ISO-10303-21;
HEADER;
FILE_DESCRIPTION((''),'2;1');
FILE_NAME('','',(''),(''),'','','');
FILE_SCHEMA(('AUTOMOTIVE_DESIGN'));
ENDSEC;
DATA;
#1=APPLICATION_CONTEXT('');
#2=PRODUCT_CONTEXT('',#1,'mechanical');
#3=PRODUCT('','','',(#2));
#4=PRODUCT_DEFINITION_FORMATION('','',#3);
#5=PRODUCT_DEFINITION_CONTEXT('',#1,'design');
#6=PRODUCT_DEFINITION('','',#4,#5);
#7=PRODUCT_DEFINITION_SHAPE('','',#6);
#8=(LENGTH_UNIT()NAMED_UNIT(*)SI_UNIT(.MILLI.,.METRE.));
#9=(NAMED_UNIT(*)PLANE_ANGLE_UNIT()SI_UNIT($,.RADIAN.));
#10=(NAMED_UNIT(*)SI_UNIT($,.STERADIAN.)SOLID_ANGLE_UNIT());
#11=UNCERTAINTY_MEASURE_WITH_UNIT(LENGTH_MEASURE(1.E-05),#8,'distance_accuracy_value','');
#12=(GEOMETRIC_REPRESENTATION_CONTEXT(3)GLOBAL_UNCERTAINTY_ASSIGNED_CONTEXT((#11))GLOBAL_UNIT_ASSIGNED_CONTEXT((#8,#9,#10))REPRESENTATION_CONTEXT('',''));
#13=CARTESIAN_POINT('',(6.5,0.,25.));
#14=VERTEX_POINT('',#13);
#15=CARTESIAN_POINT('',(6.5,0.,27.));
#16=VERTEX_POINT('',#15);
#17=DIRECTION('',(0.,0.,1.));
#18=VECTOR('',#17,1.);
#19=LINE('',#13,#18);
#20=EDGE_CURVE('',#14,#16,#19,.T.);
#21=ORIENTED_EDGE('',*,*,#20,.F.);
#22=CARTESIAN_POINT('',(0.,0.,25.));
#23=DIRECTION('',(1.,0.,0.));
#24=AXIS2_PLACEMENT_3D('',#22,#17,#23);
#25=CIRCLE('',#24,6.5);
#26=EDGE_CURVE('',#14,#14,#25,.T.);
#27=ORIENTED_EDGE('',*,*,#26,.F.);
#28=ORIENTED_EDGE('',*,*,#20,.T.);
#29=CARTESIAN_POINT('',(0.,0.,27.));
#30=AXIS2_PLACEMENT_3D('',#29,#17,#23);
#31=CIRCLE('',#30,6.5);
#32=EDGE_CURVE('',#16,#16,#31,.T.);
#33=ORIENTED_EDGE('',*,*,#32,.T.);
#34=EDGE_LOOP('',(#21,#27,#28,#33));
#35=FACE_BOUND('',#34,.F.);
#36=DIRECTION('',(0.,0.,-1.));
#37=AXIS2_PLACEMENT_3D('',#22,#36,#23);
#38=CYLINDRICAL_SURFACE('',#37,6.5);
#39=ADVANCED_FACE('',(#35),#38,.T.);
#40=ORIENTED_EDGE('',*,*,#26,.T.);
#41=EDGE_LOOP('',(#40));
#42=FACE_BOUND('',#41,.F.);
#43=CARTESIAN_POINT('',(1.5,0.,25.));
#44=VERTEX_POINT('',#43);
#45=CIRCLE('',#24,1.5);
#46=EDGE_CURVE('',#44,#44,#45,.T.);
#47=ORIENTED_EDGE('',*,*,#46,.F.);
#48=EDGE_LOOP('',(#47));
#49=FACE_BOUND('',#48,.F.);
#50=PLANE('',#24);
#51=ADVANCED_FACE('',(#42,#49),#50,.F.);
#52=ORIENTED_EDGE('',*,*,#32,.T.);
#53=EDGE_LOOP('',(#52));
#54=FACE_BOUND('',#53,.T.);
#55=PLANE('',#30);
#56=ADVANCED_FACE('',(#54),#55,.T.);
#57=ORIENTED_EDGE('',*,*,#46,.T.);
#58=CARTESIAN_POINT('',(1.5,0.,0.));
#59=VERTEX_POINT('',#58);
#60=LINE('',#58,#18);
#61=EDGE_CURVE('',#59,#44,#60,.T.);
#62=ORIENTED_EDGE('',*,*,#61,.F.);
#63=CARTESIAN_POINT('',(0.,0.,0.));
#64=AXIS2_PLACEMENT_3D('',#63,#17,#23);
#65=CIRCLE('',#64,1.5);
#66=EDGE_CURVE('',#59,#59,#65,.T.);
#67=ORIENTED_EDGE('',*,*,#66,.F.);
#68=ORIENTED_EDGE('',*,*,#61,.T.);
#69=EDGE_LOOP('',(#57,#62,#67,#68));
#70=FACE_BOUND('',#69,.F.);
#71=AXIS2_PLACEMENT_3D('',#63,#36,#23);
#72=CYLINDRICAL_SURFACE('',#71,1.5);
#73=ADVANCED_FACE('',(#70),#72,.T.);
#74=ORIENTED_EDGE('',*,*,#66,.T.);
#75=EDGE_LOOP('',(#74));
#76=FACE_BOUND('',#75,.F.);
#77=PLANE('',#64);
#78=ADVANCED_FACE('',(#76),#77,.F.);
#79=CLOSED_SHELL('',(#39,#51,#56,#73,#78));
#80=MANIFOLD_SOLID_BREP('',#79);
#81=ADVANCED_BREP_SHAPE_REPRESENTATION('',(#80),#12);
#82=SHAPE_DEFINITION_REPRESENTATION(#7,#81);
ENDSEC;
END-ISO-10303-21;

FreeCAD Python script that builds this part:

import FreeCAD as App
import Part
import Sketcher

V = App.Vector

doc = App.newDocument("Part")
body = doc.addObject("PartDesign::Body", "Body")

# Sketch on XY plane
sketch1 = body.newObject("Sketcher::SketchObject", "Sketch")
sketch1.AttachmentSupport = (doc.getObject("XY_Plane"), [""])
sketch1.MapMode = "FlatFace"
sketch1.addGeometry(Part.Circle(V(0, 0, 0), V(0, 0, 1), 1.5), False)
sketch1.addConstraint(Sketcher.Constraint("Coincident", 0, 3, -1, 1))
sketch1.addConstraint(Sketcher.Constraint("Diameter", 0, 3.0))
pad1 = body.newObject("PartDesign::Pad", "Pad")
pad1.Profile = sketch1
pad1.Length = 25

# Sketch on XY plane
sketch2 = body.newObject("Sketcher::SketchObject", "Sketch001")
sketch2.AttachmentSupport = (doc.getObject("XY_Plane"), [""])
sketch2.MapMode = "FlatFace"
sketch2.AttachmentOffset = App.Placement(V(0, 0, 25), App.Rotation())
sketch2.addGeometry(Part.Circle(V(0, 0, 0), V(0, 0, 1), 6.5), False)
sketch2.addConstraint(Sketcher.Constraint("Coincident", 0, 3, -1, 1))
sketch2.addConstraint(Sketcher.Constraint("Diameter", 0, 13.0))
pad2 = body.newObject("PartDesign::Pad", "Pad001")
pad2.Profile = sketch2
pad2.Length = 2

doc.recompute()
